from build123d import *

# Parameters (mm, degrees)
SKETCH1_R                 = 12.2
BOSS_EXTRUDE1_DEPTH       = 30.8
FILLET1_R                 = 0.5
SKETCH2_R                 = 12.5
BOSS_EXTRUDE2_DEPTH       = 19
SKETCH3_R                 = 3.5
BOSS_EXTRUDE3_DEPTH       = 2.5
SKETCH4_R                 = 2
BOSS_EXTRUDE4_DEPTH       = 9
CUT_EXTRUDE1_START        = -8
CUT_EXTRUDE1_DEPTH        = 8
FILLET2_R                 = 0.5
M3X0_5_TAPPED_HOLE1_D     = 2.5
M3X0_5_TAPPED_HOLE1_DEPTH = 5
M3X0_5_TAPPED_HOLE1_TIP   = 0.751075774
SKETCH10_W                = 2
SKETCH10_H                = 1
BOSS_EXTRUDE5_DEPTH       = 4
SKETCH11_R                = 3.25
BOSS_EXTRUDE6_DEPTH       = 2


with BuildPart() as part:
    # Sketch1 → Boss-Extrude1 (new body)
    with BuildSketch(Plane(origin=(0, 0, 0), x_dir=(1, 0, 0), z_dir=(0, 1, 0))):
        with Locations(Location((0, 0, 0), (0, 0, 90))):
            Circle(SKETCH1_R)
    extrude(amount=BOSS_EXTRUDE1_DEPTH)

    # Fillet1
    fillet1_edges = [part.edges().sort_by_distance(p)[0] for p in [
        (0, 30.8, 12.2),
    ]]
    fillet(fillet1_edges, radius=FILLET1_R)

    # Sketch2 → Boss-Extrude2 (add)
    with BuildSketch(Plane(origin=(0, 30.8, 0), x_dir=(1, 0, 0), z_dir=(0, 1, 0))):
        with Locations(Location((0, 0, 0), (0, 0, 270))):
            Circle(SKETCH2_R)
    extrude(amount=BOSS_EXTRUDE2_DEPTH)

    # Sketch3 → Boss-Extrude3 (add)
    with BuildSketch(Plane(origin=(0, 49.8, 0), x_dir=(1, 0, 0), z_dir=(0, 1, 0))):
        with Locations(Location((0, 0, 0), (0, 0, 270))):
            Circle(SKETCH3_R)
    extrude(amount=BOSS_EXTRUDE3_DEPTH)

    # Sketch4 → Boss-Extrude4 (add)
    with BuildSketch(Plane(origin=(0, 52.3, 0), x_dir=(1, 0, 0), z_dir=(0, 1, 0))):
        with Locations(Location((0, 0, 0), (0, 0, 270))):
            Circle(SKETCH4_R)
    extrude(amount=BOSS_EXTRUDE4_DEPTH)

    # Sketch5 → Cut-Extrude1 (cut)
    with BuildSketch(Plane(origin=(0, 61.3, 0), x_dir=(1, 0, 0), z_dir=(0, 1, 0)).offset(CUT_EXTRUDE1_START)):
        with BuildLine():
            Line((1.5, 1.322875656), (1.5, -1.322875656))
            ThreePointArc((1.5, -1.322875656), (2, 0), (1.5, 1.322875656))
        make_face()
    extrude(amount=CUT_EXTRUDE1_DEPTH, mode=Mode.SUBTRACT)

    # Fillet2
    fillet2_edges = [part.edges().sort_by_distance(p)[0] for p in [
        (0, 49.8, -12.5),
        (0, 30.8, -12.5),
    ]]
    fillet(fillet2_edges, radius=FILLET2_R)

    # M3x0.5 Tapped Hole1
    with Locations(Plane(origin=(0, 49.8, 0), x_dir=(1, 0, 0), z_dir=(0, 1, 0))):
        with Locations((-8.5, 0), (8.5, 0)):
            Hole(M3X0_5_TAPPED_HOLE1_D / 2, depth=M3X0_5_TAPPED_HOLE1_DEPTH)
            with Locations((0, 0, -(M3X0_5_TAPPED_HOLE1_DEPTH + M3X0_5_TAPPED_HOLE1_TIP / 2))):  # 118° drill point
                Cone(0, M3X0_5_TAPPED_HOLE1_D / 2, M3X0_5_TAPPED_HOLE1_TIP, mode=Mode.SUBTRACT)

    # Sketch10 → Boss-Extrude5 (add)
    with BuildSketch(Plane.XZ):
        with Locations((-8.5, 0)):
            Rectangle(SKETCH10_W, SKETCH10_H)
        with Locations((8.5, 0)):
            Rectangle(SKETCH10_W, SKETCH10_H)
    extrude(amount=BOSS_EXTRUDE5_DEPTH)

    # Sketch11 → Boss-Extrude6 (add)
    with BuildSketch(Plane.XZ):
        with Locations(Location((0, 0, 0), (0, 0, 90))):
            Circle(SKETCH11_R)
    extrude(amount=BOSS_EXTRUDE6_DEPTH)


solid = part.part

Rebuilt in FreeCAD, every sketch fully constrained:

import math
import FreeCAD as App
import Part
import Sketcher

V = App.Vector
Q = App.Units.Quantity


def edges_at(feature, points):
    """Names of the edges that pass closest to the given points."""
    edges = feature.Shape.Edges
    near = lambda p: min(range(len(edges)), key=lambda i: edges[i].distToShape(Part.Vertex(*p))[0])
    return sorted({f"Edge{near(p) + 1}" for p in points})


def add_polygon(sketch, points):
    """Adds a closed chain of lines whose ends are joined by coincident constraints."""
    first, n = sketch.GeometryCount, len(points)
    for a, b in zip(points, points[1:] + points[:1]):
        sketch.addGeometry(Part.LineSegment(App.Vector(*a, 0), App.Vector(*b, 0)), False)
    for i in range(n):
        sketch.addConstraint(Sketcher.Constraint("Coincident", first + i, 2, first + (i + 1) % n, 1))

doc = App.newDocument("Part")
body = doc.addObject("PartDesign::Body", "Body")

sketch1 = doc.addObject("Sketcher::SketchObject", "Sketch")
body.addObject(sketch1)
sketch1.AttachmentSupport = (doc.XZ_Plane, [""])
sketch1.MapMode = "FlatFace"
sketch1.addGeometry(Part.Circle(V(0, 0, 0), V(0, 0, 1), 12), False)
sketch1.addConstraint(Sketcher.Constraint("Coincident", 0, 3, -1, 1))
sketch1.addConstraint(Sketcher.Constraint("Diameter", 0, Q("24.4 mm")))
pad1 = doc.addObject("PartDesign::Pad", "Pad")
body.addObject(pad1)
pad1.Profile = sketch1
pad1.Length = 30.8
pad1.Reversed = True
doc.recompute()

fillet = doc.addObject("PartDesign::Fillet", "Fillet")
body.addObject(fillet)
fillet.Base = (pad1, edges_at(pad1, [(0, 30.8, 12.2)]))
fillet.Radius = 0.5

sketch2 = doc.addObject("Sketcher::SketchObject", "Sketch001")
body.addObject(sketch2)
sketch2.AttachmentSupport = (doc.XZ_Plane, [""])
sketch2.MapMode = "FlatFace"
sketch2.AttachmentOffset = App.Placement(V(0, 0, -30.8), App.Rotation())
sketch2.addGeometry(Part.Circle(V(0, 0, 0), V(0, 0, 1), 12), False)
sketch2.addConstraint(Sketcher.Constraint("Coincident", 0, 3, -1, 1))
sketch2.addConstraint(Sketcher.Constraint("Diameter", 0, Q("25 mm")))
pad2 = doc.addObject("PartDesign::Pad", "Pad001")
body.addObject(pad2)
pad2.Profile = sketch2
pad2.Length = 19
pad2.Reversed = True

sketch3 = doc.addObject("Sketcher::SketchObject", "Sketch002")
body.addObject(sketch3)
sketch3.AttachmentSupport = (doc.XZ_Plane, [""])
sketch3.MapMode = "FlatFace"
sketch3.AttachmentOffset = App.Placement(V(0, 0, -49.8), App.Rotation())
sketch3.addGeometry(Part.Circle(V(0, 0, 0), V(0, 0, 1), 3.5), False)
sketch3.addConstraint(Sketcher.Constraint("Coincident", 0, 3, -1, 1))
sketch3.addConstraint(Sketcher.Constraint("Diameter", 0, Q("7 mm")))
pad3 = doc.addObject("PartDesign::Pad", "Pad002")
body.addObject(pad3)
pad3.Profile = sketch3
pad3.Length = 2.5
pad3.Reversed = True

sketch4 = doc.addObject("Sketcher::SketchObject", "Sketch003")
body.addObject(sketch4)
sketch4.AttachmentSupport = (doc.XZ_Plane, [""])
sketch4.MapMode = "FlatFace"
sketch4.AttachmentOffset = App.Placement(V(0, 0, -52.3), App.Rotation())
sketch4.addGeometry(Part.Circle(V(0, 0, 0), V(0, 0, 1), 2), False)
sketch4.addConstraint(Sketcher.Constraint("Coincident", 0, 3, -1, 1))
sketch4.addConstraint(Sketcher.Constraint("Diameter", 0, Q("4 mm")))
pad4 = doc.addObject("PartDesign::Pad", "Pad003")
body.addObject(pad4)
pad4.Profile = sketch4
pad4.Length = 9
pad4.Reversed = True

sketch5 = doc.addObject("Sketcher::SketchObject", "Sketch004")
body.addObject(sketch5)
sketch5.AttachmentSupport = (doc.XZ_Plane, [""])
sketch5.MapMode = "FlatFace"
sketch5.AttachmentOffset = App.Placement(V(0, 0, -53.3), App.Rotation())
sketch5.addGeometry(Part.LineSegment(V(1.5, -1.3, 0), V(1.5, 1.3, 0)), False)
sketch5.addGeometry(Part.ArcOfCircle(Part.Circle(V(0, 0, 0), V(0, 0, 1), 2), math.radians(-41), math.radians(41)), False)
sketch5.addConstraint(Sketcher.Constraint("Coincident", 0, 1, 1, 1))
sketch5.addConstraint(Sketcher.Constraint("Coincident", 1, 2, 0, 2))
sketch5.addConstraint(Sketcher.Constraint("Vertical", 0))
sketch5.addConstraint(Sketcher.Constraint("Coincident", 1, 3, -1, 1))
sketch5.addConstraint(Sketcher.Constraint("Radius", 1, Q("2 mm")))
sketch5.addConstraint(Sketcher.Constraint("DistanceX", -1, 1, 0, 1, Q("1.5 mm")))
pocket1 = doc.addObject("PartDesign::Pocket", "Pocket")
body.addObject(pocket1)
pocket1.Profile = sketch5
pocket1.Length = 8
doc.recompute()

fillet2 = doc.addObject("PartDesign::Fillet", "Fillet001")
body.addObject(fillet2)
fillet2.Base = (pocket1, edges_at(pocket1, [(0, 49.8, -12.5), (0, 30.8, -12.5)]))
fillet2.Radius = 0.5

sketch6 = doc.addObject("Sketcher::SketchObject", "Sketch005")
body.addObject(sketch6)
sketch6.AttachmentSupport = (doc.XZ_Plane, [""])
sketch6.MapMode = "FlatFace"
sketch6.AttachmentOffset = App.Placement(V(0, 0, -49.8), App.Rotation())
sketch6.addGeometry(Part.Circle(V(-8.5, 0, 0), V(0, 0, 1), 1.2), False)
sketch6.addGeometry(Part.Circle(V(8.5, 0, 0), V(0, 0, 1), 1.2), False)
sketch6.addConstraint(Sketcher.Constraint("Equal", 0, 1))
sketch6.addConstraint(Sketcher.Constraint("Symmetric", 0, 3, 1, 3, -1, 1))
sketch6.addConstraint(Sketcher.Constraint("PointOnObject", 0, 3, -1))
sketch6.addConstraint(Sketcher.Constraint("Diameter", 0, Q("2.5 mm")))
sketch6.addConstraint(Sketcher.Constraint("DistanceX", 0, 3, 1, 3, Q("17 mm")))
doc.recompute()
hole = doc.addObject("PartDesign::Hole", "Hole")
body.addObject(hole)
hole.Profile = sketch6
hole.ThreadType = "None"
hole.Diameter = 2.5
hole.DepthType = "Dimension"
hole.Depth = 5
hole.DrillPoint = "Angled"
hole.DrillPointAngle = 118
hole.Reversed = True

sketch7 = doc.addObject("Sketcher::SketchObject", "Sketch006")
body.addObject(sketch7)
sketch7.AttachmentSupport = (doc.XZ_Plane, [""])
sketch7.MapMode = "FlatFace"
add_polygon(sketch7, [(-9.5, 0.5), (-9.5, -0.5), (-7.5, -0.5), (-7.5, 0.5)])
add_polygon(sketch7, [(7.5, 0.5), (7.5, -0.5), (9.5, -0.5), (9.5, 0.5)])
sketch7.addConstraint(Sketcher.Constraint("Vertical", 0))
sketch7.addConstraint(Sketcher.Constraint("Horizontal", 1))
sketch7.addConstraint(Sketcher.Constraint("Vertical", 2))
sketch7.addConstraint(Sketcher.Constraint("Horizontal", 3))
sketch7.addConstraint(Sketcher.Constraint("Vertical", 4))
sketch7.addConstraint(Sketcher.Constraint("Horizontal", 5))
sketch7.addConstraint(Sketcher.Constraint("Vertical", 6))
sketch7.addConstraint(Sketcher.Constraint("Horizontal", 7))
sketch7.addConstraint(Sketcher.Constraint("Symmetric", 2, 2, 4, 2, -1, 1))
sketch7.addConstraint(Sketcher.Constraint("Symmetric", 0, 2, 6, 2, -1, 1))
sketch7.addConstraint(Sketcher.Constraint("Horizontal", 1, 2, 4, 2))
sketch7.addConstraint(Sketcher.Constraint("DistanceX", 1, 1, 1, 2, Q("2 mm")))
sketch7.addConstraint(Sketcher.Constraint("DistanceY", 0, 2, 0, 1, Q("1 mm")))
sketch7.addConstraint(Sketcher.Constraint("DistanceX", 1, 2, 4, 2, Q("15 mm")))
pad5 = doc.addObject("PartDesign::Pad", "Pad004")
body.addObject(pad5)
pad5.Profile = sketch7
pad5.Length = 4

sketch8 = doc.addObject("Sketcher::SketchObject", "Sketch007")
body.addObject(sketch8)
sketch8.AttachmentSupport = (doc.XZ_Plane, [""])
sketch8.MapMode = "FlatFace"
sketch8.addGeometry(Part.Circle(V(0, 0, 0), V(0, 0, 1), 3.2), False)
sketch8.addConstraint(Sketcher.Constraint("Coincident", 0, 3, -1, 1))
sketch8.addConstraint(Sketcher.Constraint("Diameter", 0, Q("6.5 mm")))
pad6 = doc.addObject("PartDesign::Pad", "Pad005")
body.addObject(pad6)
pad6.Profile = sketch8
pad6.Length = 2

doc.recompute()
